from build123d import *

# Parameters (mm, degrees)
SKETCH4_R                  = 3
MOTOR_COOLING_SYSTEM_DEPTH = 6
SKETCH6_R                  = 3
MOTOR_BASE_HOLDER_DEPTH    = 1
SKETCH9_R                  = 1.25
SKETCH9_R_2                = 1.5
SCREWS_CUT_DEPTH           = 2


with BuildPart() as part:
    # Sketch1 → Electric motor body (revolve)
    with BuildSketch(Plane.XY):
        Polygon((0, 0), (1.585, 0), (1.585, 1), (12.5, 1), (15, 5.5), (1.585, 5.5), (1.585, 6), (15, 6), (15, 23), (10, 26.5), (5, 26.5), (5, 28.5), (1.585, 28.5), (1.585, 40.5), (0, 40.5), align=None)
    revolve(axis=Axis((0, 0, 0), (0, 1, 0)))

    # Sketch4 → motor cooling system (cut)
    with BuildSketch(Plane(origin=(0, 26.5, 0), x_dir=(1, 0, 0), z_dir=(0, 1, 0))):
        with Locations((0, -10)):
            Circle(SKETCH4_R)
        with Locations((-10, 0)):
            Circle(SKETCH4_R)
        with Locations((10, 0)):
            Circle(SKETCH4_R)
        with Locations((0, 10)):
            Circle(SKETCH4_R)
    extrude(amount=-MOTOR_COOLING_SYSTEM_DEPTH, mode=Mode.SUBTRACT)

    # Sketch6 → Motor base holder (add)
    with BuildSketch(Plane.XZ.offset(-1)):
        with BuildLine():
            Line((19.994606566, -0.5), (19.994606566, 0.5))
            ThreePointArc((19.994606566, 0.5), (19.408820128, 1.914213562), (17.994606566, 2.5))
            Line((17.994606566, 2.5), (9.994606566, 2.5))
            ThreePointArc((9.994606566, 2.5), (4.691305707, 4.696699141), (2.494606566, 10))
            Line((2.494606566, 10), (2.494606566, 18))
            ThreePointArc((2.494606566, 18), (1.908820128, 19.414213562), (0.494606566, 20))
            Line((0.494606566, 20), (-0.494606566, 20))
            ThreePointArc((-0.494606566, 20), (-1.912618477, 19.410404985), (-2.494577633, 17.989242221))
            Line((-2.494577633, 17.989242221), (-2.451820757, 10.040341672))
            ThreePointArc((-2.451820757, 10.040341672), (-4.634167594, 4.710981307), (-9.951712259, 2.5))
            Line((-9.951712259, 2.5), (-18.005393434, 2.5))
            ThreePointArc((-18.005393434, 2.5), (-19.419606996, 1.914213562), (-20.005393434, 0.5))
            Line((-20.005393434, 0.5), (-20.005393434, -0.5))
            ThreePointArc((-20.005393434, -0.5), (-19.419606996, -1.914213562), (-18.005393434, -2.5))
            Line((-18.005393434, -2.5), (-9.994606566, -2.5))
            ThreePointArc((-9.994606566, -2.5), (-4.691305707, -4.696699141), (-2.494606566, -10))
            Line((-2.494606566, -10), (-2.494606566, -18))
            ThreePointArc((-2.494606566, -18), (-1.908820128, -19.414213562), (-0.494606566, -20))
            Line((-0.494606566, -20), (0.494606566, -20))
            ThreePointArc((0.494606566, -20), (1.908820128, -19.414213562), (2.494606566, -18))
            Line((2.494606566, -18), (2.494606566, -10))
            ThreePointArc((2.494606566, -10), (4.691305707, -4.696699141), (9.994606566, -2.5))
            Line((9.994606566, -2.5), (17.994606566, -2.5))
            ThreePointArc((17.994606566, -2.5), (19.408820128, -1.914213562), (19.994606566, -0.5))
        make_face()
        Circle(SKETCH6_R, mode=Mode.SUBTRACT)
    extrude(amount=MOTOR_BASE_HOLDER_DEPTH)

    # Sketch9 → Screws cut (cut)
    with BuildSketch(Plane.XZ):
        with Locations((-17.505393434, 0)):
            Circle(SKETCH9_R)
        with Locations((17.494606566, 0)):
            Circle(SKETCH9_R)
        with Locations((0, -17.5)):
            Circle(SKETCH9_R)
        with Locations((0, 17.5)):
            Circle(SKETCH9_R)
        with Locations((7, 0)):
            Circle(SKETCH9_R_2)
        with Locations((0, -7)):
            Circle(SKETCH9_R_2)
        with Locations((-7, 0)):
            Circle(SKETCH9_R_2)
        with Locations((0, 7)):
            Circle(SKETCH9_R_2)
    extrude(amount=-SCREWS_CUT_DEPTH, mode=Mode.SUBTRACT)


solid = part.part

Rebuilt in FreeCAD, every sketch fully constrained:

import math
import FreeCAD as App
import Part
import Sketcher
from FreeCAD import Vector
Q = App.Units.Quantity

doc = App.newDocument("Part")
body = doc.addObject("PartDesign::Body", "Body")

sketch1 = body.newObject("Sketcher::SketchObject", "Sketch")
sketch1.AttachmentSupport = (doc.getObject("XY_Plane"), [""])
sketch1.MapMode = "FlatFace"
sketch1.addGeometry([
    Part.LineSegment(Vector(0, 0, 0), Vector(1.6, 0, 0)),
    Part.LineSegment(Vector(1.6, 0, 0), Vector(1.6, 1, 0)),
    Part.LineSegment(Vector(1.6, 1, 0), Vector(12.5, 1, 0)),
    Part.LineSegment(Vector(12.5, 1, 0), Vector(15, 5.5, 0)),
    Part.LineSegment(Vector(15, 5.5, 0), Vector(1.6, 5.5, 0)),
    Part.LineSegment(Vector(1.6, 5.5, 0), Vector(1.6, 6, 0)),
    Part.LineSegment(Vector(1.6, 6, 0), Vector(15, 6, 0)),
    Part.LineSegment(Vector(15, 6, 0), Vector(15, 23, 0)),
    Part.LineSegment(Vector(15, 23, 0), Vector(10, 26.5, 0)),
    Part.LineSegment(Vector(10, 26.5, 0), Vector(5, 26.5, 0)),
    Part.LineSegment(Vector(5, 26.5, 0), Vector(5, 28.5, 0)),
    Part.LineSegment(Vector(5, 28.5, 0), Vector(1.6, 28.5, 0)),
    Part.LineSegment(Vector(1.6, 28.5, 0), Vector(1.6, 40.5, 0)),
    Part.LineSegment(Vector(1.6, 40.5, 0), Vector(0, 40.5, 0)),
    Part.LineSegment(Vector(0, 40.5, 0), Vector(0, 0, 0)),
], False)
sketch1.addConstraint([
    Sketcher.Constraint("Coincident", 0, 2, 1, 1),
    Sketcher.Constraint("Coincident", 1, 2, 2, 1),
    Sketcher.Constraint("Coincident", 2, 2, 3, 1),
    Sketcher.Constraint("Coincident", 3, 2, 4, 1),
    Sketcher.Constraint("Coincident", 4, 2, 5, 1),
    Sketcher.Constraint("Coincident", 5, 2, 6, 1),
    Sketcher.Constraint("Coincident", 6, 2, 7, 1),
    Sketcher.Constraint("Coincident", 7, 2, 8, 1),
    Sketcher.Constraint("Coincident", 8, 2, 9, 1),
    Sketcher.Constraint("Coincident", 9, 2, 10, 1),
    Sketcher.Constraint("Coincident", 10, 2, 11, 1),
    Sketcher.Constraint("Coincident", 11, 2, 12, 1),
    Sketcher.Constraint("Coincident", 12, 2, 13, 1),
    Sketcher.Constraint("Coincident", 13, 2, 14, 1),
    Sketcher.Constraint("Coincident", 14, 2, 0, 1),
    Sketcher.Constraint("Horizontal", 0),
    Sketcher.Constraint("Vertical", 1),
    Sketcher.Constraint("Horizontal", 2),
    Sketcher.Constraint("Horizontal", 4),
    Sketcher.Constraint("Vertical", 5),
    Sketcher.Constraint("Horizontal", 6),
    Sketcher.Constraint("Vertical", 7),
    Sketcher.Constraint("Horizontal", 9),
    Sketcher.Constraint("Vertical", 10),
    Sketcher.Constraint("Horizontal", 11),
    Sketcher.Constraint("Vertical", 12),
    Sketcher.Constraint("Horizontal", 13),
    Sketcher.Constraint("Vertical", 14),
    Sketcher.Constraint("Coincident", 14, 2, -1, 1),
    Sketcher.Constraint("Vertical", 1, 2, 4, 2),
    Sketcher.Constraint("Vertical", 3, 2, 6, 2),
    Sketcher.Constraint("Vertical", 5, 2, 11, 2),
    Sketcher.Constraint("DistanceX", 9, 2, 9, 1, Q("5 mm")),
    Sketcher.Constraint("DistanceY", 1, 1, 1, 2, Q("1 mm")),
    Sketcher.Constraint("DistanceY", 7, 1, 7, 2, Q("17 mm")),
    Sketcher.Constraint("DistanceY", 10, 1, 10, 2, Q("2 mm")),
    Sketcher.Constraint("DistanceY", 12, 1, 12, 2, Q("12 mm")),
    Sketcher.Constraint("DistanceY", 5, 1, 5, 2, Q("0.5 mm")),
    Sketcher.Constraint("DistanceY", 14, 2, 14, 1, Q("40.5 mm")),
    Sketcher.Constraint("DistanceX", -1, 1, 3, 2, Q("15 mm")),
    Sketcher.Constraint("DistanceY", -1, 1, 5, 2, Q("6 mm")),
    Sketcher.Constraint("DistanceX", -1, 1, 8, 2, Q("10 mm")),
    Sketcher.Constraint("DistanceX", -1, 1, 2, 2, Q("12.5 mm")),
    Sketcher.Constraint("DistanceX", 0, 1, 0, 2, Q("1.585 mm")),
])
revolution = body.newObject("PartDesign::Revolution", "Revolution")
revolution.Profile = sketch1
revolution.ReferenceAxis = (sketch1, ["V_Axis"])
revolution.Angle = 360

sketch2 = body.newObject("Sketcher::SketchObject", "Sketch001")
sketch2.AttachmentSupport = (doc.getObject("XZ_Plane"), [""])
sketch2.MapMode = "FlatFace"
sketch2.AttachmentOffset = App.Placement(Vector(0, 0, -26.5), App.Rotation())
sketch2.addGeometry([
    Part.Circle(Vector(0, 10, 0), Vector(0, 0, 1), 3),
    Part.Circle(Vector(-10, 0, 0), Vector(0, 0, 1), 3),
    Part.Circle(Vector(10, 0, 0), Vector(0, 0, 1), 3),
    Part.Circle(Vector(0, -10, 0), Vector(0, 0, 1), 3),
], False)
sketch2.addConstraint([
    Sketcher.Constraint("Equal", 0, 1),
    Sketcher.Constraint("Equal", 1, 2),
    Sketcher.Constraint("Equal", 2, 3),
    Sketcher.Constraint("Symmetric", 1, 3, 2, 3, -1, 1),
    Sketcher.Constraint("Symmetric", 0, 3, 3, 3, -1, 1),
    Sketcher.Constraint("PointOnObject", 0, 3, -2),
    Sketcher.Constraint("PointOnObject", 1, 3, -1),
    Sketcher.Constraint("Diameter", 0, Q("6 mm")),
    Sketcher.Constraint("DistanceY", -1, 1, 0, 3, Q("10 mm")),
    Sketcher.Constraint("DistanceX", 1, 3, -1, 1, Q("10 mm")),
])
pocket1 = body.newObject("PartDesign::Pocket", "Pocket")
pocket1.Profile = sketch2
pocket1.Length = 6
pocket1.Reversed = True

sketch3 = body.newObject("Sketcher::SketchObject", "Sketch002")
sketch3.AttachmentSupport = (doc.getObject("XZ_Plane"), [""])
sketch3.MapMode = "FlatFace"
sketch3.AttachmentOffset = App.Placement(Vector(0, 0, -1), App.Rotation())
sketch3.addGeometry([
    Part.LineSegment(Vector(20, -0.5, 0), Vector(20, 0.5, 0)),
    Part.ArcOfCircle(Part.Circle(Vector(18, 0.5, 0), Vector(0, 0, 1), 2), math.radians(0), math.radians(90)),
    Part.LineSegment(Vector(18, 2.5, 0), Vector(10, 2.5, 0)),
    Part.ArcOfCircle(Part.Circle(Vector(10, 10, 0), Vector(0, 0, 1), 7.5), math.radians(180), math.radians(270)),
    Part.LineSegment(Vector(2.5, 10, 0), Vector(2.5, 18, 0)),
    Part.ArcOfCircle(Part.Circle(Vector(0.5, 18, 0), Vector(0, 0, 1), 2), math.radians(0), math.radians(90)),
    Part.LineSegment(Vector(0.5, 20, 0), Vector(-0.5, 20, 0)),
    Part.ArcOfCircle(Part.Circle(Vector(-0.5, 18, 0), Vector(0, 0, 1), 2), math.radians(90), math.radians(180)),
    Part.LineSegment(Vector(-2.5, 18, 0), Vector(-2.5, 10, 0)),
    Part.ArcOfCircle(Part.Circle(Vector(-10, 10, 0), Vector(0, 0, 1), 7.5), math.radians(-90), math.radians(0)),
    Part.LineSegment(Vector(-10, 2.5, 0), Vector(-18, 2.5, 0)),
    Part.ArcOfCircle(Part.Circle(Vector(-18, 0.5, 0), Vector(0, 0, 1), 2), math.radians(90), math.radians(180)),
    Part.LineSegment(Vector(-20, 0.5, 0), Vector(-20, -0.5, 0)),
    Part.ArcOfCircle(Part.Circle(Vector(-18, -0.5, 0), Vector(0, 0, 1), 2), math.radians(-180), math.radians(-90)),
    Part.LineSegment(Vector(-18, -2.5, 0), Vector(-10, -2.5, 0)),
    Part.ArcOfCircle(Part.Circle(Vector(-10, -10, 0), Vector(0, 0, 1), 7.5), math.radians(0), math.radians(90)),
    Part.LineSegment(Vector(-2.5, -10, 0), Vector(-2.5, -18, 0)),
    Part.ArcOfCircle(Part.Circle(Vector(-0.5, -18, 0), Vector(0, 0, 1), 2), math.radians(-180), math.radians(-90)),
    Part.LineSegment(Vector(-0.5, -20, 0), Vector(0.5, -20, 0)),
    Part.ArcOfCircle(Part.Circle(Vector(0.5, -18, 0), Vector(0, 0, 1), 2), math.radians(-90), math.radians(0)),
    Part.LineSegment(Vector(2.5, -18, 0), Vector(2.5, -10, 0)),
    Part.ArcOfCircle(Part.Circle(Vector(10, -10, 0), Vector(0, 0, 1), 7.5), math.radians(90), math.radians(180)),
    Part.LineSegment(Vector(10, -2.5, 0), Vector(18, -2.5, 0)),
    Part.ArcOfCircle(Part.Circle(Vector(18, -0.5, 0), Vector(0, 0, 1), 2), math.radians(-90), math.radians(0)),
    Part.Circle(Vector(0, 0, 0), Vector(0, 0, 1), 3),
], False)
sketch3.addConstraint([
    Sketcher.Constraint("Tangent", 0, 2, 1, 1),
    Sketcher.Constraint("Tangent", 1, 2, 2, 1),
    Sketcher.Constraint("Tangent", 2, 2, 3, 2),
    Sketcher.Constraint("Tangent", 3, 1, 4, 1),
    Sketcher.Constraint("Tangent", 4, 2, 5, 1),
    Sketcher.Constraint("Tangent", 5, 2, 6, 1),
    Sketcher.Constraint("Tangent", 6, 2, 7, 1),
    Sketcher.Constraint("Tangent", 7, 2, 8, 1),
    Sketcher.Constraint("Tangent", 8, 2, 9, 2),
    Sketcher.Constraint("Tangent", 9, 1, 10, 1),
    Sketcher.Constraint("Tangent", 10, 2, 11, 1),
    Sketcher.Constraint("Tangent", 11, 2, 12, 1),
    Sketcher.Constraint("Tangent", 12, 2, 13, 1),
    Sketcher.Constraint("Tangent", 13, 2, 14, 1),
    Sketcher.Constraint("Tangent", 14, 2, 15, 2),
    Sketcher.Constraint("Tangent", 15, 1, 16, 1),
    Sketcher.Constraint("Tangent", 16, 2, 17, 1),
    Sketcher.Constraint("Tangent", 17, 2, 18, 1),
    Sketcher.Constraint("Tangent", 18, 2, 19, 1),
    Sketcher.Constraint("Tangent", 19, 2, 20, 1),
    Sketcher.Constraint("Tangent", 20, 2, 21, 2),
    Sketcher.Constraint("Tangent", 21, 1, 22, 1),
    Sketcher.Constraint("Tangent", 22, 2, 23, 1),
    Sketcher.Constraint("Tangent", 23, 2, 0, 1),
    Sketcher.Constraint("Vertical", 0),
    Sketcher.Constraint("Horizontal", 2),
    Sketcher.Constraint("Vertical", 4),
    Sketcher.Constraint("Horizontal", 6),
    Sketcher.Constraint("Horizontal", 10),
    Sketcher.Constraint("Vertical", 12),
    Sketcher.Constraint("Horizontal", 14),
    Sketcher.Constraint("Vertical", 16),
    Sketcher.Constraint("Horizontal", 18),
    Sketcher.Constraint("Vertical", 20),
    Sketcher.Constraint("Horizontal", 22),
    Sketcher.Constraint("Coincident", 24, 3, -1, 1),
    Sketcher.Constraint("Equal", 1, 5),
    Sketcher.Constraint("Equal", 5, 7),
    Sketcher.Constraint("Equal", 3, 9),
    Sketcher.Constraint("Equal", 7, 11),
    Sketcher.Constraint("Equal", 11, 13),
    Sketcher.Constraint("Equal", 9, 15),
    Sketcher.Constraint("Equal", 13, 17),
    Sketcher.Constraint("Equal", 17, 19),
    Sketcher.Constraint("Equal", 15, 21),
    Sketcher.Constraint("Equal", 19, 23),
    Sketcher.Constraint("Symmetric", 3, 3, 15, 3, -1, 1),
    Sketcher.Constraint("Symmetric", 7, 3, 19, 3, -1, 1),
    Sketcher.Constraint("Symmetric", 15, 3, 21, 3, -2),
    Sketcher.Constraint("Horizontal", 3, 3, 9, 3),
    Sketcher.Constraint("Equal", 22, 4),
    Sketcher.Constraint("Diameter", 24, Q("6 mm")),
    Sketcher.Constraint("Radius", 1, Q("2 mm")),
    Sketcher.Constraint("Radius", 3, Q("7.5 mm")),
    Sketcher.Constraint("DistanceX", 2, 2, 2, 1, Q("8 mm")),
    Sketcher.Constraint("DistanceY", 0, 1, 0, 2, Q("1 mm")),
    Sketcher.Constraint("DistanceX", 11, 3, 3, 3, Q("28 mm")),
    Sketcher.Constraint("DistanceX", 10, 2, 10, 1, Q("8.053681 mm")),
    Sketcher.Constraint("DistanceY", 8, 2, 7, 2, Q("7.948901 mm")),
])
pad1 = body.newObject("PartDesign::Pad", "Pad")
pad1.Profile = sketch3
pad1.Length = 1

sketch4 = body.newObject("Sketcher::SketchObject", "Sketch003")
sketch4.AttachmentSupport = (doc.getObject("XZ_Plane"), [""])
sketch4.MapMode = "FlatFace"
sketch4.addGeometry([
    Part.Circle(Vector(-17.5, 0, 0), Vector(0, 0, 1), 1.2),
    Part.Circle(Vector(17.5, 0, 0), Vector(0, 0, 1), 1.2),
    Part.Circle(Vector(0, -17.5, 0), Vector(0, 0, 1), 1.2),
    Part.Circle(Vector(0, 17.5, 0), Vector(0, 0, 1), 1.2),
    Part.Circle(Vector(7, 0, 0), Vector(0, 0, 1), 1.5),
    Part.Circle(Vector(0, -7, 0), Vector(0, 0, 1), 1.5),
    Part.Circle(Vector(-7, 0, 0), Vector(0, 0, 1), 1.5),
    Part.Circle(Vector(0, 7, 0), Vector(0, 0, 1), 1.5),
], False)
sketch4.addConstraint([
    Sketcher.Constraint("Equal", 0, 1),
    Sketcher.Constraint("Equal", 1, 2),
    Sketcher.Constraint("Equal", 2, 3),
    Sketcher.Constraint("Equal", 4, 5),
    Sketcher.Constraint("Equal", 5, 6),
    Sketcher.Constraint("Equal", 6, 7),
    Sketcher.Constraint("Symmetric", 2, 3, 3, 3, -1, 1),
    Sketcher.Constraint("Symmetric", 4, 3, 6, 3, -1, 1),
    Sketcher.Constraint("Symmetric", 5, 3, 7, 3, -1, 1),
    Sketcher.Constraint("PointOnObject", 0, 3, -1),
    Sketcher.Constraint("PointOnObject", 1, 3, -1),
    Sketcher.Constraint("PointOnObject", 2, 3, -2),
    Sketcher.Constraint("PointOnObject", 4, 3, -1),
    Sketcher.Constraint("PointOnObject", 5, 3, -2),
    Sketcher.Constraint("Diameter", 4, Q("3 mm")),
    Sketcher.Constraint("Diameter", 0, Q("2.5 mm")),
    Sketcher.Constraint("DistanceX", -1, 1, 4, 3, Q("7 mm")),
    Sketcher.Constraint("DistanceY", 5, 3, -1, 1, Q("7 mm")),
    Sketcher.Constraint("DistanceX", 0, 3, 1, 3, Q("35 mm")),
    Sketcher.Constraint("DistanceY", 2, 3, 3, 3, Q("35 mm")),
    Sketcher.Constraint("DistanceX", 0, 3, -1, 1, Q("17.505393 mm")),
])
pocket2 = body.newObject("PartDesign::Pocket", "Pocket001")
pocket2.Profile = sketch4
pocket2.Length = 2

doc.recompute()
